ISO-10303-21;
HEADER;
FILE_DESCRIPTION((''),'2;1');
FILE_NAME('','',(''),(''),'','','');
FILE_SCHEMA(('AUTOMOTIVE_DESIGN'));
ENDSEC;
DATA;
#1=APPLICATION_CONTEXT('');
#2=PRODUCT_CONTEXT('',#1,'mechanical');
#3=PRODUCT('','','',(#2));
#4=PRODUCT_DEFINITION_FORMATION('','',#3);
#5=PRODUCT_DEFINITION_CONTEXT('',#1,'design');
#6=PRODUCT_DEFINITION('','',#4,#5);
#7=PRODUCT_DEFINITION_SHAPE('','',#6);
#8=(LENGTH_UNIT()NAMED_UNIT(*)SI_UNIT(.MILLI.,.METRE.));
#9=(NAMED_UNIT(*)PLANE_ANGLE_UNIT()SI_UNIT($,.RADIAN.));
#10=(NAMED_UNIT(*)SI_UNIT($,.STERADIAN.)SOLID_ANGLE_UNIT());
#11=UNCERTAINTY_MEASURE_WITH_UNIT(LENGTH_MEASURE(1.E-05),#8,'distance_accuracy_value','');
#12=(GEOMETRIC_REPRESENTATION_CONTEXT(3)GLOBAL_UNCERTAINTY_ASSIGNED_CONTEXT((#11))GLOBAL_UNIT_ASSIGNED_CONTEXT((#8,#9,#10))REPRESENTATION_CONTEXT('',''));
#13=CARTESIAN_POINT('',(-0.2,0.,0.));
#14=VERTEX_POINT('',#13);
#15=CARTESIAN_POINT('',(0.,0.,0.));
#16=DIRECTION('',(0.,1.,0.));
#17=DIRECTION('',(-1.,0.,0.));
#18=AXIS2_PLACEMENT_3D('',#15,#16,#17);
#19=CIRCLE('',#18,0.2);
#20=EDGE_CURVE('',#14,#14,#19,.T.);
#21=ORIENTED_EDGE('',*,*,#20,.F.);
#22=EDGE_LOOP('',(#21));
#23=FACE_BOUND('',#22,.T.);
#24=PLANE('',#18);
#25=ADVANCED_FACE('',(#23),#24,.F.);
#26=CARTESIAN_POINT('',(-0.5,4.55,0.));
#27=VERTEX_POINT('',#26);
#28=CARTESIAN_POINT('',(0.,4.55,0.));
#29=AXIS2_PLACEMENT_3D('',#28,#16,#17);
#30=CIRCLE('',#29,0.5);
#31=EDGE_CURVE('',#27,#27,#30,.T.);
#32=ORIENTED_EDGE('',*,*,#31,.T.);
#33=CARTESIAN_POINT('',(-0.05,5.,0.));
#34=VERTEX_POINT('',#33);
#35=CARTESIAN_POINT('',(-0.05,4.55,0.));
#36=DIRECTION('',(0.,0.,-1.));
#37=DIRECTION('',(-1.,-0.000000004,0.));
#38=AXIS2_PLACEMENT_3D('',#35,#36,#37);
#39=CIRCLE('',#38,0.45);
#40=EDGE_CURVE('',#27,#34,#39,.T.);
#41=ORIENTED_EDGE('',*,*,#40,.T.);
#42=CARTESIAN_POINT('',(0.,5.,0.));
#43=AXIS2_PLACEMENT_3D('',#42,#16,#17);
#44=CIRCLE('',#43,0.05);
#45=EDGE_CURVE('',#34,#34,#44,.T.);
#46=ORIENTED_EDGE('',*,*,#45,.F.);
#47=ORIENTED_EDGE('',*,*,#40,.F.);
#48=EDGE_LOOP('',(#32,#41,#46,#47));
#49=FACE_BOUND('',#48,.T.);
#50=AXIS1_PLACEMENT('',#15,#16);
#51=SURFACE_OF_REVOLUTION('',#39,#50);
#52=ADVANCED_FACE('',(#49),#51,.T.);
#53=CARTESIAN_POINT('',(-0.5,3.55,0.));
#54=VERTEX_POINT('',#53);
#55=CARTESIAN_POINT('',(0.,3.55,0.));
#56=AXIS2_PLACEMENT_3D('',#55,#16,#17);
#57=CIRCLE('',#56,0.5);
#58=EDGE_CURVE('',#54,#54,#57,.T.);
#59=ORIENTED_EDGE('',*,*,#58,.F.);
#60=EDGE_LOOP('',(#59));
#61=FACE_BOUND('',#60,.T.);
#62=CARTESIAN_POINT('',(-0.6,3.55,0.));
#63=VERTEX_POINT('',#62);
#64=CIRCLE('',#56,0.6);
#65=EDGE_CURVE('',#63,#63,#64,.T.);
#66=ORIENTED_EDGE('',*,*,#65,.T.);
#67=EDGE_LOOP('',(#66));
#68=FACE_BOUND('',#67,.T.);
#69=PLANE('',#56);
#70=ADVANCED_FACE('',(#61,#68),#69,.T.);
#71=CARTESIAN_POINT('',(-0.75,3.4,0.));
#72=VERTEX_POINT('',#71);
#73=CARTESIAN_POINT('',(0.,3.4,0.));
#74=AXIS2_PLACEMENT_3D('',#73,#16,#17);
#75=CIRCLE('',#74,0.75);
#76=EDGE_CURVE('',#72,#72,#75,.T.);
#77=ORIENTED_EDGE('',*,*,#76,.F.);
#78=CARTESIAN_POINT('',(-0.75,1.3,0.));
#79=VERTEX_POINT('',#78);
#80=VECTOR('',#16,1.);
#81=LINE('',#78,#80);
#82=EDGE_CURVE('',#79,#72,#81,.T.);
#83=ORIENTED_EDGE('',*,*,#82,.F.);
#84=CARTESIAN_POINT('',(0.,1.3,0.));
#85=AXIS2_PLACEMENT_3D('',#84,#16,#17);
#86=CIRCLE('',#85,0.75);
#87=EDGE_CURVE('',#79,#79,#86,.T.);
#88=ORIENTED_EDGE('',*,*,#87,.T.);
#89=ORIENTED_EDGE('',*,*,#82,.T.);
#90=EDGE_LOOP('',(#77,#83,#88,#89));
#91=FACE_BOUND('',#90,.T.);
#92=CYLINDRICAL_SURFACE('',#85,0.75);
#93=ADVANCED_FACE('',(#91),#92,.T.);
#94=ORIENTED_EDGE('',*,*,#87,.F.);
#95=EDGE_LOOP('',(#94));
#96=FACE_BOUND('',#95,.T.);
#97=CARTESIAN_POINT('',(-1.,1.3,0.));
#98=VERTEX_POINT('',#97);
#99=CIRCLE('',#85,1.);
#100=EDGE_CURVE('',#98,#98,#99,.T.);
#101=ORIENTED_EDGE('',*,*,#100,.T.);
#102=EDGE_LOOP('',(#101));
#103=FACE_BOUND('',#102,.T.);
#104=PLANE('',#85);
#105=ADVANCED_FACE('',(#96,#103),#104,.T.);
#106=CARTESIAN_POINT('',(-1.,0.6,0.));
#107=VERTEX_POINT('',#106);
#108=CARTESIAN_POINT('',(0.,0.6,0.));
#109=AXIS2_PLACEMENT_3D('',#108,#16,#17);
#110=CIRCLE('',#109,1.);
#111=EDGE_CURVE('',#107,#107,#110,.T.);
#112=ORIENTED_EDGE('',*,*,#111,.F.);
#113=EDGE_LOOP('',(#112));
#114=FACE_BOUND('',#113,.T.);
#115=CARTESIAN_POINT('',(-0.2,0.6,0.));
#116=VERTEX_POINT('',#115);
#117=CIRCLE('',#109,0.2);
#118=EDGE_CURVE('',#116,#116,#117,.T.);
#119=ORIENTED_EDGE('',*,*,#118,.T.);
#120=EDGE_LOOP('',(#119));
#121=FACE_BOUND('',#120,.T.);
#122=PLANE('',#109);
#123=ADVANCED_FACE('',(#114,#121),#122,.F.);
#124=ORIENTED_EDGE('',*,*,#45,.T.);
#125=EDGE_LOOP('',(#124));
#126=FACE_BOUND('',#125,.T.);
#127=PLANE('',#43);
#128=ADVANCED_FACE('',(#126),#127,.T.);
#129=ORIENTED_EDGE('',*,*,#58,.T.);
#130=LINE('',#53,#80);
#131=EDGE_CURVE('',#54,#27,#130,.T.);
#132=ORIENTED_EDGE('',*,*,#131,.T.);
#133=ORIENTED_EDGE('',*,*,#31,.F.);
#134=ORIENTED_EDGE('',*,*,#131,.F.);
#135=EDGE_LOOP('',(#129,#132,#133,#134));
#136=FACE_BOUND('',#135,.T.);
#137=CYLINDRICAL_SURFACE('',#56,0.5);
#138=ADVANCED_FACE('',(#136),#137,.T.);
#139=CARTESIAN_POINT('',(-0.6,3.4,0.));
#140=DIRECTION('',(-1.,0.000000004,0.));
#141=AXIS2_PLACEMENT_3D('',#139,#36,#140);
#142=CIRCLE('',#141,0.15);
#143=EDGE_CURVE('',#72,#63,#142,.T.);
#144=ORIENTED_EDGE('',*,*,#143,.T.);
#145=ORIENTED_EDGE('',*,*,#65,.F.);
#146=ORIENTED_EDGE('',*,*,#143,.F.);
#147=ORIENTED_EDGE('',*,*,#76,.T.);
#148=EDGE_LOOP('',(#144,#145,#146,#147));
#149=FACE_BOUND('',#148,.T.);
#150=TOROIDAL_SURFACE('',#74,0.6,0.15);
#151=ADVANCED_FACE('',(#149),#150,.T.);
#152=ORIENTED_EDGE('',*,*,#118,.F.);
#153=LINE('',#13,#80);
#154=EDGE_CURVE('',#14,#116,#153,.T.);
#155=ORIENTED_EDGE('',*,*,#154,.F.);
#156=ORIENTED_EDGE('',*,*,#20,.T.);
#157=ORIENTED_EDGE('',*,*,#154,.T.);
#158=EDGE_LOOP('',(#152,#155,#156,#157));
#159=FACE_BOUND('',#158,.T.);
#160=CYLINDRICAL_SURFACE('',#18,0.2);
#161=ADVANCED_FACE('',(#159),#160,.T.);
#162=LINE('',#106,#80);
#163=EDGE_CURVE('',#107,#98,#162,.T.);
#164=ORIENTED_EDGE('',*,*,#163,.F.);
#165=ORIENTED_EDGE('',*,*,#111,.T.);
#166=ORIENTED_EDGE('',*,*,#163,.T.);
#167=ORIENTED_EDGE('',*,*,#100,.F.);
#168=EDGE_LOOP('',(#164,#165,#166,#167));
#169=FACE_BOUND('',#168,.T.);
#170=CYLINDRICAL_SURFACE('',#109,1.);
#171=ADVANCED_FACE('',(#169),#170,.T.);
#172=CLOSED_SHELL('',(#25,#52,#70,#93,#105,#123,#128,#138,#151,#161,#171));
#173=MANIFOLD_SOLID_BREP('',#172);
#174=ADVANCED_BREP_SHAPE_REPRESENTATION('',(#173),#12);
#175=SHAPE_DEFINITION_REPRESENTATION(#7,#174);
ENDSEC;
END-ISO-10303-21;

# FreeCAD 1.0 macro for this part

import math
import FreeCAD as App
import Part
import Sketcher

V = App.Vector
Q = App.Units.Quantity

doc = App.newDocument("Part")
body = doc.addObject("PartDesign::Body", "Body")

# Sketch on XY plane
sketch1 = body.newObject("Sketcher::SketchObject", "Sketch")
sketch1.AttachmentSupport = (doc.getObject("XY_Plane"), [""])
sketch1.MapMode = "FlatFace"
sketch1.addGeometry([
    Part.LineSegment(V(-0.2, 0, 0), V(0, 0, 0)),  # 0
    Part.LineSegment(V(0, 0, 0), V(0, 5, 0)),  # 1
    Part.LineSegment(V(0, 5, 0), V(-0.05, 5, 0)),  # 2
    Part.ArcOfCircle(Part.Circle(V(-0.05, 4.55, 0), V(0, 0, 1), 0.45), math.radians(90), math.radians(180)),  # 3
    Part.LineSegment(V(-0.5, 4.55, 0), V(-0.5, 3.55, 0)),  # 4
    Part.LineSegment(V(-0.5, 3.55, 0), V(-0.6, 3.55, 0)),  # 5
    Part.ArcOfCircle(Part.Circle(V(-0.6, 3.4, 0), V(0, 0, 1), 0.15), math.radians(90), math.radians(180)),  # 6
    Part.LineSegment(V(-0.75, 3.4, 0), V(-0.75, 1.3, 0)),  # 7
    Part.LineSegment(V(-0.75, 1.3, 0), V(-1, 1.3, 0)),  # 8
    Part.LineSegment(V(-1, 1.3, 0), V(-1, 0.6, 0)),  # 9
    Part.LineSegment(V(-1, 0.6, 0), V(-0.2, 0.6, 0)),  # 10
    Part.LineSegment(V(-0.2, 0.6, 0), V(-0.2, 0, 0)),  # 11
], False)
sketch1.addConstraint([
    Sketcher.Constraint("Coincident", 0, 2, 1, 1),
    Sketcher.Constraint("Coincident", 1, 2, 2, 1),
    Sketcher.Constraint("Tangent", 2, 2, 3, 1),
    Sketcher.Constraint("Tangent", 3, 2, 4, 1),
    Sketcher.Constraint("Coincident", 4, 2, 5, 1),
    Sketcher.Constraint("Tangent", 5, 2, 6, 1),
    Sketcher.Constraint("Tangent", 6, 2, 7, 1),
    Sketcher.Constraint("Coincident", 7, 2, 8, 1),
    Sketcher.Constraint("Coincident", 8, 2, 9, 1),
    Sketcher.Constraint("Coincident", 9, 2, 10, 1),
    Sketcher.Constraint("Coincident", 10, 2, 11, 1),
    Sketcher.Constraint("Coincident", 11, 2, 0, 1),
    Sketcher.Constraint("Horizontal", 0),
    Sketcher.Constraint("Vertical", 1),
    Sketcher.Constraint("Horizontal", 2),
    Sketcher.Constraint("Vertical", 4),
    Sketcher.Constraint("Horizontal", 5),
    Sketcher.Constraint("Vertical", 7),
    Sketcher.Constraint("Horizontal", 8),
    Sketcher.Constraint("Vertical", 9),
    Sketcher.Constraint("Horizontal", 10),
    Sketcher.Constraint("Vertical", 11),
    Sketcher.Constraint("Coincident", 0, 2, -1, 1),
    Sketcher.Constraint("DistanceY", 1, 1, 1, 2, Q("5 mm")),
    Sketcher.Constraint("DistanceY", 4, 2, 4, 1, Q("1 mm")),
    Sketcher.Constraint("Radius", 3, Q("0.45 mm")),
    Sketcher.Constraint("Radius", 6, Q("0.15 mm")),
    Sketcher.Constraint("DistanceX", 0, 1, 0, 2, Q("0.2 mm")),
    Sketcher.Constraint("DistanceX", 5, 2, 5, 1, Q("0.1 mm")),
    Sketcher.Constraint("DistanceX", 10, 1, 10, 2, Q("0.8 mm")),
    Sketcher.Constraint("DistanceY", 7, 2, 7, 1, Q("2.1 mm")),
    Sketcher.Constraint("DistanceY", 9, 2, 9, 1, Q("0.7 mm")),
    Sketcher.Constraint("DistanceX", 2, 2, 2, 1, Q("0.05 mm")),
])
revolution = body.newObject("PartDesign::Revolution", "Revolution")
revolution.Profile = sketch1
revolution.ReferenceAxis = (sketch1, ["V_Axis"])
revolution.Angle = 360

doc.recompute()
